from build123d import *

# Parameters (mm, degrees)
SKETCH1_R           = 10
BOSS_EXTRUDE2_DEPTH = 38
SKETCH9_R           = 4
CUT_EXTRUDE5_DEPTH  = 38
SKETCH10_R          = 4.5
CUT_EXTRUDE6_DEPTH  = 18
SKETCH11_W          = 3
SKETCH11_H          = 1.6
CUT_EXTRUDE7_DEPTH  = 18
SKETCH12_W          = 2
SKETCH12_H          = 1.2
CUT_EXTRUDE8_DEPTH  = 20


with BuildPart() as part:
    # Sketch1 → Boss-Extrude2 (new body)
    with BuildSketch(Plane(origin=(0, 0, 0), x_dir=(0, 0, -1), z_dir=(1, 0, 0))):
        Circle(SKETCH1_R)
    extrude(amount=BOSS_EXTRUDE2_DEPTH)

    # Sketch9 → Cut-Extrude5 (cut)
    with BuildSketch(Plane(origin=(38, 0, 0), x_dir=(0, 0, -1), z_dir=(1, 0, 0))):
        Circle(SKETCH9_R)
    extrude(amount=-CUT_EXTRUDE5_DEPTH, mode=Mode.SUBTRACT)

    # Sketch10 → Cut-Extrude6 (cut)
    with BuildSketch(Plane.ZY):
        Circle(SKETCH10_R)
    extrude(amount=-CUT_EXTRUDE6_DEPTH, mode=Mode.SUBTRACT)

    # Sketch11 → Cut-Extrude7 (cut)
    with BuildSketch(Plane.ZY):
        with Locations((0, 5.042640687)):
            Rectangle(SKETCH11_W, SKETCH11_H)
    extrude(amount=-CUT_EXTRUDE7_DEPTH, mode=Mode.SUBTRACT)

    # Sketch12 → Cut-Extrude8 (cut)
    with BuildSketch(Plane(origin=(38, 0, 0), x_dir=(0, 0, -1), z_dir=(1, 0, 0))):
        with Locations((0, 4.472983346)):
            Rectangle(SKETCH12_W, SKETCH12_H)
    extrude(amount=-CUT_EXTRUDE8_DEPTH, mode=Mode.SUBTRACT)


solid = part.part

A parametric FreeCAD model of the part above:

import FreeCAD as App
import Part
import Sketcher
from FreeCAD import Vector


def add_polygon(sketch, points):
    """Adds a closed chain of lines whose ends are joined by coincident constraints."""
    first, n = sketch.GeometryCount, len(points)
    for a, b in zip(points, points[1:] + points[:1]):
        sketch.addGeometry(Part.LineSegment(App.Vector(*a, 0), App.Vector(*b, 0)), False)
    for i in range(n):
        sketch.addConstraint(Sketcher.Constraint("Coincident", first + i, 2, first + (i + 1) % n, 1))

doc = App.newDocument("Part")
body = doc.addObject("PartDesign::Body", "Body")

sketch1 = body.newObject("Sketcher::SketchObject", "Sketch")
sketch1.AttachmentSupport = (doc.getObject("YZ_Plane"), [""])
sketch1.MapMode = "FlatFace"
sketch1.addGeometry(Part.Circle(Vector(0, 0, 0), Vector(0, 0, 1), 10), False)
sketch1.addConstraint(Sketcher.Constraint("Coincident", 0, 3, -1, 1))
sketch1.addConstraint(Sketcher.Constraint("Diameter", 0, 20.0))
pad1 = body.newObject("PartDesign::Pad", "Pad")
pad1.Profile = sketch1
pad1.Length = 38

sketch2 = body.newObject("Sketcher::SketchObject", "Sketch001")
sketch2.AttachmentSupport = (doc.getObject("YZ_Plane"), [""])
sketch2.MapMode = "FlatFace"
sketch2.AttachmentOffset = App.Placement(Vector(0, 0, 38), App.Rotation())
sketch2.addGeometry(Part.Circle(Vector(0, 0, 0), Vector(0, 0, 1), 4), False)
sketch2.addConstraint(Sketcher.Constraint("Coincident", 0, 3, -1, 1))
sketch2.addConstraint(Sketcher.Constraint("Diameter", 0, 8.0))
pocket1 = body.newObject("PartDesign::Pocket", "Pocket")
pocket1.Profile = sketch2
pocket1.Length = 38

sketch3 = body.newObject("Sketcher::SketchObject", "Sketch002")
sketch3.AttachmentSupport = (doc.getObject("YZ_Plane"), [""])
sketch3.MapMode = "FlatFace"
sketch3.addGeometry(Part.Circle(Vector(0, 0, 0), Vector(0, 0, 1), 4.5), False)
sketch3.addConstraint(Sketcher.Constraint("Coincident", 0, 3, -1, 1))
sketch3.addConstraint(Sketcher.Constraint("Diameter", 0, 9.0))
pocket2 = body.newObject("PartDesign::Pocket", "Pocket001")
pocket2.Profile = sketch3
pocket2.Length = 18
pocket2.Reversed = True

sketch4 = body.newObject("Sketcher::SketchObject", "Sketch003")
sketch4.AttachmentSupport = (doc.getObject("YZ_Plane"), [""])
sketch4.MapMode = "FlatFace"
add_polygon(sketch4, [(5.8, -1.5), (4.2, -1.5), (4.2, 1.5), (5.8, 1.5)])
sketch4.addConstraint(Sketcher.Constraint("Horizontal", 0))
sketch4.addConstraint(Sketcher.Constraint("Vertical", 1))
sketch4.addConstraint(Sketcher.Constraint("Horizontal", 2))
sketch4.addConstraint(Sketcher.Constraint("Vertical", 3))
sketch4.addConstraint(Sketcher.Constraint("DistanceY", 1, 1, 1, 2, 3.0))
sketch4.addConstraint(Sketcher.Constraint("DistanceX", 0, 2, 0, 1, 1.6))
sketch4.addConstraint(Sketcher.Constraint("DistanceY", 0, 2, -1, 1, 1.5))
sketch4.addConstraint(Sketcher.Constraint("DistanceX", -1, 1, 0, 2, 4.242641))
pocket3 = body.newObject("PartDesign::Pocket", "Pocket002")
pocket3.Profile = sketch4
pocket3.Length = 18
pocket3.Reversed = True

sketch5 = body.newObject("Sketcher::SketchObject", "Sketch004")
sketch5.AttachmentSupport = (doc.getObject("YZ_Plane"), [""])
sketch5.MapMode = "FlatFace"
sketch5.AttachmentOffset = App.Placement(Vector(0, 0, 38), App.Rotation())
add_polygon(sketch5, [(5.1, 1), (3.9, 1), (3.9, -1), (5.1, -1)])
sketch5.addConstraint(Sketcher.Constraint("Horizontal", 0))
sketch5.addConstraint(Sketcher.Constraint("Vertical", 1))
sketch5.addConstraint(Sketcher.Constraint("Horizontal", 2))
sketch5.addConstraint(Sketcher.Constraint("Vertical", 3))
sketch5.addConstraint(Sketcher.Constraint("DistanceY", 1, 2, 1, 1, 2.0))
sketch5.addConstraint(Sketcher.Constraint("DistanceX", 0, 2, 0, 1, 1.2))
sketch5.addConstraint(Sketcher.Constraint("DistanceY", -1, 1, 0, 2, 1.0))
sketch5.addConstraint(Sketcher.Constraint("DistanceX", -1, 1, 0, 2, 3.872983))
pocket4 = body.newObject("PartDesign::Pocket", "Pocket003")
pocket4.Profile = sketch5
pocket4.Length = 20

doc.recompute()
